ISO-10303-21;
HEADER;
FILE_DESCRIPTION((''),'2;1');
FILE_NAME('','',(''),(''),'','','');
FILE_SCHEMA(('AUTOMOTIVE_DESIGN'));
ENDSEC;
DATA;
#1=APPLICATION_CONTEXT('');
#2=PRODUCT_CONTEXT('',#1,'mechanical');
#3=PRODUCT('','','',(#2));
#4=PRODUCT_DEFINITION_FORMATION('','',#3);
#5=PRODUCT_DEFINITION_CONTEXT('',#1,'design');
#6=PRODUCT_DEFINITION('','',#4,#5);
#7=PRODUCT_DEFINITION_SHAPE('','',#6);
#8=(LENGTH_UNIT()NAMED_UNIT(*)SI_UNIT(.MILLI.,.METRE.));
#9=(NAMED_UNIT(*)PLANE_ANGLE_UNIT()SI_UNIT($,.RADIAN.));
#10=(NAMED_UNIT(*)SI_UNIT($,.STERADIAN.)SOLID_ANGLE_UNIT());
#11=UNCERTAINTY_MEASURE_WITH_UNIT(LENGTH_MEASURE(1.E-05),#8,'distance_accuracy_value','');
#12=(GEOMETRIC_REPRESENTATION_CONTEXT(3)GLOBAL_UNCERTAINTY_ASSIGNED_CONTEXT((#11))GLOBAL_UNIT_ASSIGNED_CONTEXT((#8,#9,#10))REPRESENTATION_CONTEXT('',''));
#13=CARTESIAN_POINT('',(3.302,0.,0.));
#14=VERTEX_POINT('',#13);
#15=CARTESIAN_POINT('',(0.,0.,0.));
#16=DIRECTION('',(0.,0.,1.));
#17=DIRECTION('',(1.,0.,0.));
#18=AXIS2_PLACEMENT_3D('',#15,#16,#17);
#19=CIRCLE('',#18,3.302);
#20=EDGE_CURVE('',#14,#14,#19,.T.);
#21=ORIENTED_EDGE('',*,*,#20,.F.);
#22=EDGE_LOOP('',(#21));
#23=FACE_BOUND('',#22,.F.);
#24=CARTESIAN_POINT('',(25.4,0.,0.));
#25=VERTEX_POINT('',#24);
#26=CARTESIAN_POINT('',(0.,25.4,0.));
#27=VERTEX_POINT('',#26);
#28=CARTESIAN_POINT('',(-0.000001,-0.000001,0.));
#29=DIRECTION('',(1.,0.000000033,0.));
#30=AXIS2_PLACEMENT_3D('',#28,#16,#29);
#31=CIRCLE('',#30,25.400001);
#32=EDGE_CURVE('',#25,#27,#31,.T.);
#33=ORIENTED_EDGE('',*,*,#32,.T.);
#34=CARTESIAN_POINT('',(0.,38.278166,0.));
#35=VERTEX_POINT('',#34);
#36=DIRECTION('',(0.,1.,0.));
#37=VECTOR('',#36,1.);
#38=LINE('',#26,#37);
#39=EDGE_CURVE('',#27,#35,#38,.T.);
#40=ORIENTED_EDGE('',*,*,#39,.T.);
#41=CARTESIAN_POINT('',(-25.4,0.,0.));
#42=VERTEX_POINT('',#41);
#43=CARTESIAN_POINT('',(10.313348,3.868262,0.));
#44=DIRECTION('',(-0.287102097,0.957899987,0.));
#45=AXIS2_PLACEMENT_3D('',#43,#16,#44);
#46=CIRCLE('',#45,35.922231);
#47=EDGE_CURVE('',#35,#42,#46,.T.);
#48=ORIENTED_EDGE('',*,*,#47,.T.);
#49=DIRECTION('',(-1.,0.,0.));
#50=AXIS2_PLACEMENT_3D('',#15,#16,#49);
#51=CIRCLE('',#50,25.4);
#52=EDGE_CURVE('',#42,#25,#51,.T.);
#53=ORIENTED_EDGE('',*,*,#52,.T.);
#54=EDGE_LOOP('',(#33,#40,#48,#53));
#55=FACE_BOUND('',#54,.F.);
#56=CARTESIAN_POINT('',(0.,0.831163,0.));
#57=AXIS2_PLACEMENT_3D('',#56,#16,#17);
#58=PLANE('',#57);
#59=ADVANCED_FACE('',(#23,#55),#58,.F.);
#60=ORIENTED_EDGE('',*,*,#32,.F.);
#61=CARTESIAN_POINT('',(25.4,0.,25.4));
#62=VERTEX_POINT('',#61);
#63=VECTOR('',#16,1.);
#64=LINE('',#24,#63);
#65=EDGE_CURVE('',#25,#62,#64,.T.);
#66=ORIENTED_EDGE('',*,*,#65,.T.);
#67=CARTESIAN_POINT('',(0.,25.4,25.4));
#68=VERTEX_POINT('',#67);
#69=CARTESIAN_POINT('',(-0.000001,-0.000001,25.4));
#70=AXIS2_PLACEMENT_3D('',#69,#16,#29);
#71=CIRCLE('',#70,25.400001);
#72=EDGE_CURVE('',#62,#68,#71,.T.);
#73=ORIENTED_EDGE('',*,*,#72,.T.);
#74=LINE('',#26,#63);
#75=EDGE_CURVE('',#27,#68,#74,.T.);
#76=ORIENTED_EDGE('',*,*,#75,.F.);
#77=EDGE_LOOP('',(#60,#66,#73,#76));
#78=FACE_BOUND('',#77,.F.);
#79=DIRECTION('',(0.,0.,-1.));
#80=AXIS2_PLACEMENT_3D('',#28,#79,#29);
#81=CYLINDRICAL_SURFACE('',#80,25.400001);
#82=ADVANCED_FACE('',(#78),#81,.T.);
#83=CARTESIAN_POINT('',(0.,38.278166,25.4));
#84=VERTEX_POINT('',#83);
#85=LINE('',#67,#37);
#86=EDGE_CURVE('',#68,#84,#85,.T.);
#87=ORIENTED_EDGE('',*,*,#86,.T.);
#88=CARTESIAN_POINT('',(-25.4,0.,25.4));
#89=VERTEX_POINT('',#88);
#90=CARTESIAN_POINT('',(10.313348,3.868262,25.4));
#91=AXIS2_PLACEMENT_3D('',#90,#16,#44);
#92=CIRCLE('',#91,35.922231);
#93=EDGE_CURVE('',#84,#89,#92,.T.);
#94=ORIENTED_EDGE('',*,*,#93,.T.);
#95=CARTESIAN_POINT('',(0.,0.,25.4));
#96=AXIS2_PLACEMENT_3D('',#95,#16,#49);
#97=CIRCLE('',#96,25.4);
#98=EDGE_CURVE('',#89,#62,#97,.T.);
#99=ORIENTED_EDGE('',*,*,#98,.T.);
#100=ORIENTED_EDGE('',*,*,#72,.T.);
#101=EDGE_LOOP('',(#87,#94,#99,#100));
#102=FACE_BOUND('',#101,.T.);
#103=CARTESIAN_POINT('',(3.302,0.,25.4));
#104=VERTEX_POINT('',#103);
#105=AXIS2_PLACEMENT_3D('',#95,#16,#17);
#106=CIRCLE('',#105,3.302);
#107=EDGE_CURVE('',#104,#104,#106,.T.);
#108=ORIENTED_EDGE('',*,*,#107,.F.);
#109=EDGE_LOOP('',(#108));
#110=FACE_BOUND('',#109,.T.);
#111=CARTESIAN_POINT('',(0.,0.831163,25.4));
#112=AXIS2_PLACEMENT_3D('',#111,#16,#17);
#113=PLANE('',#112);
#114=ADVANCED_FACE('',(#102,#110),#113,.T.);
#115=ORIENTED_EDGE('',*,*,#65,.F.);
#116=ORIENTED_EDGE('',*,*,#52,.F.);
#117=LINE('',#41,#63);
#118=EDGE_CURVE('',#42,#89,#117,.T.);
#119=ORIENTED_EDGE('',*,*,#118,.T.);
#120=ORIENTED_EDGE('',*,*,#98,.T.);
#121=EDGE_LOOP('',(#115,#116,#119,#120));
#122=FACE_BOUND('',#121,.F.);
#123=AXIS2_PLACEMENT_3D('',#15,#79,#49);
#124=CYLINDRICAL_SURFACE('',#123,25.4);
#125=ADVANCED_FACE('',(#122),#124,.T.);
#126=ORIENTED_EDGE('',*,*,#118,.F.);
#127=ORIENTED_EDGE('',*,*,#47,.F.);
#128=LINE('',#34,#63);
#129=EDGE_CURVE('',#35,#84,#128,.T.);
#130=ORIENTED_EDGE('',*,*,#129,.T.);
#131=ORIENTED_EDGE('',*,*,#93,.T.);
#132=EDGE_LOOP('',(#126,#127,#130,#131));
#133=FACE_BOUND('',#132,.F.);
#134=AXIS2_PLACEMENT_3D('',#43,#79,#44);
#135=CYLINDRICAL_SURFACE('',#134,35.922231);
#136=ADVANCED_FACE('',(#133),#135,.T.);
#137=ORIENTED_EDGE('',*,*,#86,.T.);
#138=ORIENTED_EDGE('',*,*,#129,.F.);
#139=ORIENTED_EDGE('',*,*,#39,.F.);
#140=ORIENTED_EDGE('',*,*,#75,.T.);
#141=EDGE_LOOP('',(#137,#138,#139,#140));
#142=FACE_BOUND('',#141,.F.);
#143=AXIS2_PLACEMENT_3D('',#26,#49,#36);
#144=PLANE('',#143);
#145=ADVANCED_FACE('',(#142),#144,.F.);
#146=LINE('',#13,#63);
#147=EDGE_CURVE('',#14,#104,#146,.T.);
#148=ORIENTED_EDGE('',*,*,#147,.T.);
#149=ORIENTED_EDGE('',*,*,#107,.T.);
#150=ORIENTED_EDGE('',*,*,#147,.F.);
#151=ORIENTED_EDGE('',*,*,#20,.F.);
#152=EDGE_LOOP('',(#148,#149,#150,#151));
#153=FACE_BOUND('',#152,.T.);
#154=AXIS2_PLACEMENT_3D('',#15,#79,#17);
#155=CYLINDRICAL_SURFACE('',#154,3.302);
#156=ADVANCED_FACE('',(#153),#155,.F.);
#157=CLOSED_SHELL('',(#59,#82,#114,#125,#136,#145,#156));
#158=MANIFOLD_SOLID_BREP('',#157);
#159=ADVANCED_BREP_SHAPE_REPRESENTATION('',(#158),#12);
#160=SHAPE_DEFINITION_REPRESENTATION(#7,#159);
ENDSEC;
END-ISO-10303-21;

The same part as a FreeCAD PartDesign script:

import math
import FreeCAD as App
import Part
import Sketcher
from FreeCAD import Vector
Q = App.Units.Quantity

doc = App.newDocument("Part")
body = doc.addObject("PartDesign::Body", "Body")

# Sketch on XY plane
sketch1 = body.newObject("Sketcher::SketchObject", "Sketch")
sketch1.AttachmentSupport = (doc.getObject("XY_Plane"), [""])
sketch1.MapMode = "FlatFace"
sketch1.addGeometry(Part.ArcOfCircle(Part.Circle(Vector(0, 0, 0), Vector(0, 0, 1), 25.4), math.radians(180), math.radians(360)), False)
sketch1.addGeometry(Part.ArcOfCircle(Part.Circle(Vector(0, 0, 0), Vector(0, 0, 1), 25.4), math.radians(0), math.radians(90)), False)
sketch1.addGeometry(Part.LineSegment(Vector(0, 25.4, 0), Vector(0, 38.3, 0)), False)
sketch1.addGeometry(Part.ArcOfCircle(Part.Circle(Vector(10.3, 3.9, 0), Vector(0, 0, 1), 35.9), math.radians(107), math.radians(186)), False)
sketch1.addGeometry(Part.Circle(Vector(0, 0, 0), Vector(0, 0, 1), 3.3), False)
sketch1.addConstraint(Sketcher.Constraint("Tangent", 0, 2, 1, 1))
sketch1.addConstraint(Sketcher.Constraint("Coincident", 1, 2, 2, 1))
sketch1.addConstraint(Sketcher.Constraint("Coincident", 2, 2, 3, 1))
sketch1.addConstraint(Sketcher.Constraint("Coincident", 3, 2, 0, 1))
sketch1.addConstraint(Sketcher.Constraint("Vertical", 2))
sketch1.addConstraint(Sketcher.Constraint("Coincident", 0, 3, -1, 1))
sketch1.addConstraint(Sketcher.Constraint("Coincident", 4, 3, -1, 1))
sketch1.addConstraint(Sketcher.Constraint("Equal", 0, 1))
sketch1.addConstraint(Sketcher.Constraint("PointOnObject", 0, 2, -1))
sketch1.addConstraint(Sketcher.Constraint("PointOnObject", 1, 2, -2))
sketch1.addConstraint(Sketcher.Constraint("PointOnObject", 3, 2, -1))
sketch1.addConstraint(Sketcher.Constraint("Radius", 0, Q("1 in")))
sketch1.addConstraint(Sketcher.Constraint("Diameter", 4, Q("0.26 in")))
sketch1.addConstraint(Sketcher.Constraint("Radius", 3, 35.922231))
sketch1.addConstraint(Sketcher.Constraint("DistanceY", 2, 1, 2, 2, 12.878166))
pad1 = body.newObject("PartDesign::Pad", "Pad")
pad1.Profile = sketch1
pad1.Length = Q("1 in")

doc.recompute()
